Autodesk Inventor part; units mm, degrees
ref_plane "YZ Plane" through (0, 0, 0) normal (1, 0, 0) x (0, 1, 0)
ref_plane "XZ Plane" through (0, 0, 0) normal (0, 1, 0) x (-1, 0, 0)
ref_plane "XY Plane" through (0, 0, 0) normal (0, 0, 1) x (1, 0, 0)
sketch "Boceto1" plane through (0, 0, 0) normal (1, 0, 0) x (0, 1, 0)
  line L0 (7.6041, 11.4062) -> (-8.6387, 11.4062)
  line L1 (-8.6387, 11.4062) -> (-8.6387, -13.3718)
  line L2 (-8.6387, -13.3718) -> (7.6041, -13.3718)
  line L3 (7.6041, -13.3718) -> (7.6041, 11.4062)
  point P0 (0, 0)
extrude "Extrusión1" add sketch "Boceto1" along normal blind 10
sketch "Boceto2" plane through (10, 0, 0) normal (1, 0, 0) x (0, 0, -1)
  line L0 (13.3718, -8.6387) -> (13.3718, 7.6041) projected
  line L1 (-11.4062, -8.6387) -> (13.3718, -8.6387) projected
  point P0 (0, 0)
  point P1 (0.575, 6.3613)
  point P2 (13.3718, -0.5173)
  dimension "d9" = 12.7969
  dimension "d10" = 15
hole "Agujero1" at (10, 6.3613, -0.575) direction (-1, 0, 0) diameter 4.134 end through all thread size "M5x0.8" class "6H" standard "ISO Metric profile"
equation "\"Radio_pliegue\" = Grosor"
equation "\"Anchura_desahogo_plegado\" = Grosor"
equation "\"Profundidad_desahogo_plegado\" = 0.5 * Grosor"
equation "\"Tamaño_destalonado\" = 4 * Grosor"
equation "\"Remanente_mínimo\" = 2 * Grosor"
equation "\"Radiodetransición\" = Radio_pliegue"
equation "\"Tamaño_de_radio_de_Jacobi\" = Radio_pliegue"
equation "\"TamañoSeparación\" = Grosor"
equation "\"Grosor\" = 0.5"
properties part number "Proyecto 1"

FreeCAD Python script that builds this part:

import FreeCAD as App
import Part
import Sketcher

doc = App.newDocument("Part")
body = doc.addObject("PartDesign::Body", "Body")

sketch1 = body.newObject("Sketcher::SketchObject", "Sketch")
sketch1.AttachmentSupport = (doc.getObject("YZ_Plane"), [""])
sketch1.MapMode = "FlatFace"
sketch1.addGeometry([
    Part.LineSegment(App.Vector(7.6041, -13.3718, 0), App.Vector(7.6041, 11.4062, 0)),
    Part.LineSegment(App.Vector(7.6041, 11.4062, 0), App.Vector(-8.6387, 11.4062, 0)),
    Part.LineSegment(App.Vector(-8.6387, 11.4062, 0), App.Vector(-8.6387, -13.3718, 0)),
    Part.LineSegment(App.Vector(-8.6387, -13.3718, 0), App.Vector(7.6041, -13.3718, 0)),
], False)
sketch1.addConstraint([
    Sketcher.Constraint("Coincident", 0, 2, 1, 1),
    Sketcher.Constraint("Coincident", 1, 2, 2, 1),
    Sketcher.Constraint("Coincident", 2, 2, 3, 1),
    Sketcher.Constraint("Coincident", 3, 2, 0, 1),
    Sketcher.Constraint("Vertical", 0),
    Sketcher.Constraint("Horizontal", 1),
    Sketcher.Constraint("Vertical", 2),
    Sketcher.Constraint("Horizontal", 3),
    Sketcher.Constraint("DistanceY", 0, 1, 0, 2, 24.778),
    Sketcher.Constraint("DistanceX", 1, 2, 1, 1, 16.2428),
    Sketcher.Constraint("DistanceX", -1, 1, 0, 2, 7.604),
    Sketcher.Constraint("DistanceY", -1, 1, 0, 2, 11.4062),
])
pad1 = body.newObject("PartDesign::Pad", "Pad")
pad1.Profile = sketch1
pad1.Length = 10

sketch2 = body.newObject("Sketcher::SketchObject", "Sketch001")
sketch2.AttachmentSupport = (doc.getObject("YZ_Plane"), [""])
sketch2.MapMode = "FlatFace"
sketch2.AttachmentOffset = App.Placement(App.Vector(0, 0, 10), App.Rotation())
sketch2.addGeometry(Part.Circle(App.Vector(6.3613, -0.575, 0), App.Vector(0, 0, 1), 2.067), False)
sketch2.addConstraint([
    Sketcher.Constraint("Diameter", 0, 4.134),
    Sketcher.Constraint("DistanceY", 0, 3, -1, 1, 0.575),
    Sketcher.Constraint("DistanceX", -1, 1, 0, 3, 6.3613),
])
doc.recompute()
hole = body.newObject("PartDesign::Hole", "Hole")
hole.Profile = sketch2
hole.ThreadType = "None"
hole.Diameter = 4.134
hole.DepthType = "ThroughAll"

doc.recompute()
